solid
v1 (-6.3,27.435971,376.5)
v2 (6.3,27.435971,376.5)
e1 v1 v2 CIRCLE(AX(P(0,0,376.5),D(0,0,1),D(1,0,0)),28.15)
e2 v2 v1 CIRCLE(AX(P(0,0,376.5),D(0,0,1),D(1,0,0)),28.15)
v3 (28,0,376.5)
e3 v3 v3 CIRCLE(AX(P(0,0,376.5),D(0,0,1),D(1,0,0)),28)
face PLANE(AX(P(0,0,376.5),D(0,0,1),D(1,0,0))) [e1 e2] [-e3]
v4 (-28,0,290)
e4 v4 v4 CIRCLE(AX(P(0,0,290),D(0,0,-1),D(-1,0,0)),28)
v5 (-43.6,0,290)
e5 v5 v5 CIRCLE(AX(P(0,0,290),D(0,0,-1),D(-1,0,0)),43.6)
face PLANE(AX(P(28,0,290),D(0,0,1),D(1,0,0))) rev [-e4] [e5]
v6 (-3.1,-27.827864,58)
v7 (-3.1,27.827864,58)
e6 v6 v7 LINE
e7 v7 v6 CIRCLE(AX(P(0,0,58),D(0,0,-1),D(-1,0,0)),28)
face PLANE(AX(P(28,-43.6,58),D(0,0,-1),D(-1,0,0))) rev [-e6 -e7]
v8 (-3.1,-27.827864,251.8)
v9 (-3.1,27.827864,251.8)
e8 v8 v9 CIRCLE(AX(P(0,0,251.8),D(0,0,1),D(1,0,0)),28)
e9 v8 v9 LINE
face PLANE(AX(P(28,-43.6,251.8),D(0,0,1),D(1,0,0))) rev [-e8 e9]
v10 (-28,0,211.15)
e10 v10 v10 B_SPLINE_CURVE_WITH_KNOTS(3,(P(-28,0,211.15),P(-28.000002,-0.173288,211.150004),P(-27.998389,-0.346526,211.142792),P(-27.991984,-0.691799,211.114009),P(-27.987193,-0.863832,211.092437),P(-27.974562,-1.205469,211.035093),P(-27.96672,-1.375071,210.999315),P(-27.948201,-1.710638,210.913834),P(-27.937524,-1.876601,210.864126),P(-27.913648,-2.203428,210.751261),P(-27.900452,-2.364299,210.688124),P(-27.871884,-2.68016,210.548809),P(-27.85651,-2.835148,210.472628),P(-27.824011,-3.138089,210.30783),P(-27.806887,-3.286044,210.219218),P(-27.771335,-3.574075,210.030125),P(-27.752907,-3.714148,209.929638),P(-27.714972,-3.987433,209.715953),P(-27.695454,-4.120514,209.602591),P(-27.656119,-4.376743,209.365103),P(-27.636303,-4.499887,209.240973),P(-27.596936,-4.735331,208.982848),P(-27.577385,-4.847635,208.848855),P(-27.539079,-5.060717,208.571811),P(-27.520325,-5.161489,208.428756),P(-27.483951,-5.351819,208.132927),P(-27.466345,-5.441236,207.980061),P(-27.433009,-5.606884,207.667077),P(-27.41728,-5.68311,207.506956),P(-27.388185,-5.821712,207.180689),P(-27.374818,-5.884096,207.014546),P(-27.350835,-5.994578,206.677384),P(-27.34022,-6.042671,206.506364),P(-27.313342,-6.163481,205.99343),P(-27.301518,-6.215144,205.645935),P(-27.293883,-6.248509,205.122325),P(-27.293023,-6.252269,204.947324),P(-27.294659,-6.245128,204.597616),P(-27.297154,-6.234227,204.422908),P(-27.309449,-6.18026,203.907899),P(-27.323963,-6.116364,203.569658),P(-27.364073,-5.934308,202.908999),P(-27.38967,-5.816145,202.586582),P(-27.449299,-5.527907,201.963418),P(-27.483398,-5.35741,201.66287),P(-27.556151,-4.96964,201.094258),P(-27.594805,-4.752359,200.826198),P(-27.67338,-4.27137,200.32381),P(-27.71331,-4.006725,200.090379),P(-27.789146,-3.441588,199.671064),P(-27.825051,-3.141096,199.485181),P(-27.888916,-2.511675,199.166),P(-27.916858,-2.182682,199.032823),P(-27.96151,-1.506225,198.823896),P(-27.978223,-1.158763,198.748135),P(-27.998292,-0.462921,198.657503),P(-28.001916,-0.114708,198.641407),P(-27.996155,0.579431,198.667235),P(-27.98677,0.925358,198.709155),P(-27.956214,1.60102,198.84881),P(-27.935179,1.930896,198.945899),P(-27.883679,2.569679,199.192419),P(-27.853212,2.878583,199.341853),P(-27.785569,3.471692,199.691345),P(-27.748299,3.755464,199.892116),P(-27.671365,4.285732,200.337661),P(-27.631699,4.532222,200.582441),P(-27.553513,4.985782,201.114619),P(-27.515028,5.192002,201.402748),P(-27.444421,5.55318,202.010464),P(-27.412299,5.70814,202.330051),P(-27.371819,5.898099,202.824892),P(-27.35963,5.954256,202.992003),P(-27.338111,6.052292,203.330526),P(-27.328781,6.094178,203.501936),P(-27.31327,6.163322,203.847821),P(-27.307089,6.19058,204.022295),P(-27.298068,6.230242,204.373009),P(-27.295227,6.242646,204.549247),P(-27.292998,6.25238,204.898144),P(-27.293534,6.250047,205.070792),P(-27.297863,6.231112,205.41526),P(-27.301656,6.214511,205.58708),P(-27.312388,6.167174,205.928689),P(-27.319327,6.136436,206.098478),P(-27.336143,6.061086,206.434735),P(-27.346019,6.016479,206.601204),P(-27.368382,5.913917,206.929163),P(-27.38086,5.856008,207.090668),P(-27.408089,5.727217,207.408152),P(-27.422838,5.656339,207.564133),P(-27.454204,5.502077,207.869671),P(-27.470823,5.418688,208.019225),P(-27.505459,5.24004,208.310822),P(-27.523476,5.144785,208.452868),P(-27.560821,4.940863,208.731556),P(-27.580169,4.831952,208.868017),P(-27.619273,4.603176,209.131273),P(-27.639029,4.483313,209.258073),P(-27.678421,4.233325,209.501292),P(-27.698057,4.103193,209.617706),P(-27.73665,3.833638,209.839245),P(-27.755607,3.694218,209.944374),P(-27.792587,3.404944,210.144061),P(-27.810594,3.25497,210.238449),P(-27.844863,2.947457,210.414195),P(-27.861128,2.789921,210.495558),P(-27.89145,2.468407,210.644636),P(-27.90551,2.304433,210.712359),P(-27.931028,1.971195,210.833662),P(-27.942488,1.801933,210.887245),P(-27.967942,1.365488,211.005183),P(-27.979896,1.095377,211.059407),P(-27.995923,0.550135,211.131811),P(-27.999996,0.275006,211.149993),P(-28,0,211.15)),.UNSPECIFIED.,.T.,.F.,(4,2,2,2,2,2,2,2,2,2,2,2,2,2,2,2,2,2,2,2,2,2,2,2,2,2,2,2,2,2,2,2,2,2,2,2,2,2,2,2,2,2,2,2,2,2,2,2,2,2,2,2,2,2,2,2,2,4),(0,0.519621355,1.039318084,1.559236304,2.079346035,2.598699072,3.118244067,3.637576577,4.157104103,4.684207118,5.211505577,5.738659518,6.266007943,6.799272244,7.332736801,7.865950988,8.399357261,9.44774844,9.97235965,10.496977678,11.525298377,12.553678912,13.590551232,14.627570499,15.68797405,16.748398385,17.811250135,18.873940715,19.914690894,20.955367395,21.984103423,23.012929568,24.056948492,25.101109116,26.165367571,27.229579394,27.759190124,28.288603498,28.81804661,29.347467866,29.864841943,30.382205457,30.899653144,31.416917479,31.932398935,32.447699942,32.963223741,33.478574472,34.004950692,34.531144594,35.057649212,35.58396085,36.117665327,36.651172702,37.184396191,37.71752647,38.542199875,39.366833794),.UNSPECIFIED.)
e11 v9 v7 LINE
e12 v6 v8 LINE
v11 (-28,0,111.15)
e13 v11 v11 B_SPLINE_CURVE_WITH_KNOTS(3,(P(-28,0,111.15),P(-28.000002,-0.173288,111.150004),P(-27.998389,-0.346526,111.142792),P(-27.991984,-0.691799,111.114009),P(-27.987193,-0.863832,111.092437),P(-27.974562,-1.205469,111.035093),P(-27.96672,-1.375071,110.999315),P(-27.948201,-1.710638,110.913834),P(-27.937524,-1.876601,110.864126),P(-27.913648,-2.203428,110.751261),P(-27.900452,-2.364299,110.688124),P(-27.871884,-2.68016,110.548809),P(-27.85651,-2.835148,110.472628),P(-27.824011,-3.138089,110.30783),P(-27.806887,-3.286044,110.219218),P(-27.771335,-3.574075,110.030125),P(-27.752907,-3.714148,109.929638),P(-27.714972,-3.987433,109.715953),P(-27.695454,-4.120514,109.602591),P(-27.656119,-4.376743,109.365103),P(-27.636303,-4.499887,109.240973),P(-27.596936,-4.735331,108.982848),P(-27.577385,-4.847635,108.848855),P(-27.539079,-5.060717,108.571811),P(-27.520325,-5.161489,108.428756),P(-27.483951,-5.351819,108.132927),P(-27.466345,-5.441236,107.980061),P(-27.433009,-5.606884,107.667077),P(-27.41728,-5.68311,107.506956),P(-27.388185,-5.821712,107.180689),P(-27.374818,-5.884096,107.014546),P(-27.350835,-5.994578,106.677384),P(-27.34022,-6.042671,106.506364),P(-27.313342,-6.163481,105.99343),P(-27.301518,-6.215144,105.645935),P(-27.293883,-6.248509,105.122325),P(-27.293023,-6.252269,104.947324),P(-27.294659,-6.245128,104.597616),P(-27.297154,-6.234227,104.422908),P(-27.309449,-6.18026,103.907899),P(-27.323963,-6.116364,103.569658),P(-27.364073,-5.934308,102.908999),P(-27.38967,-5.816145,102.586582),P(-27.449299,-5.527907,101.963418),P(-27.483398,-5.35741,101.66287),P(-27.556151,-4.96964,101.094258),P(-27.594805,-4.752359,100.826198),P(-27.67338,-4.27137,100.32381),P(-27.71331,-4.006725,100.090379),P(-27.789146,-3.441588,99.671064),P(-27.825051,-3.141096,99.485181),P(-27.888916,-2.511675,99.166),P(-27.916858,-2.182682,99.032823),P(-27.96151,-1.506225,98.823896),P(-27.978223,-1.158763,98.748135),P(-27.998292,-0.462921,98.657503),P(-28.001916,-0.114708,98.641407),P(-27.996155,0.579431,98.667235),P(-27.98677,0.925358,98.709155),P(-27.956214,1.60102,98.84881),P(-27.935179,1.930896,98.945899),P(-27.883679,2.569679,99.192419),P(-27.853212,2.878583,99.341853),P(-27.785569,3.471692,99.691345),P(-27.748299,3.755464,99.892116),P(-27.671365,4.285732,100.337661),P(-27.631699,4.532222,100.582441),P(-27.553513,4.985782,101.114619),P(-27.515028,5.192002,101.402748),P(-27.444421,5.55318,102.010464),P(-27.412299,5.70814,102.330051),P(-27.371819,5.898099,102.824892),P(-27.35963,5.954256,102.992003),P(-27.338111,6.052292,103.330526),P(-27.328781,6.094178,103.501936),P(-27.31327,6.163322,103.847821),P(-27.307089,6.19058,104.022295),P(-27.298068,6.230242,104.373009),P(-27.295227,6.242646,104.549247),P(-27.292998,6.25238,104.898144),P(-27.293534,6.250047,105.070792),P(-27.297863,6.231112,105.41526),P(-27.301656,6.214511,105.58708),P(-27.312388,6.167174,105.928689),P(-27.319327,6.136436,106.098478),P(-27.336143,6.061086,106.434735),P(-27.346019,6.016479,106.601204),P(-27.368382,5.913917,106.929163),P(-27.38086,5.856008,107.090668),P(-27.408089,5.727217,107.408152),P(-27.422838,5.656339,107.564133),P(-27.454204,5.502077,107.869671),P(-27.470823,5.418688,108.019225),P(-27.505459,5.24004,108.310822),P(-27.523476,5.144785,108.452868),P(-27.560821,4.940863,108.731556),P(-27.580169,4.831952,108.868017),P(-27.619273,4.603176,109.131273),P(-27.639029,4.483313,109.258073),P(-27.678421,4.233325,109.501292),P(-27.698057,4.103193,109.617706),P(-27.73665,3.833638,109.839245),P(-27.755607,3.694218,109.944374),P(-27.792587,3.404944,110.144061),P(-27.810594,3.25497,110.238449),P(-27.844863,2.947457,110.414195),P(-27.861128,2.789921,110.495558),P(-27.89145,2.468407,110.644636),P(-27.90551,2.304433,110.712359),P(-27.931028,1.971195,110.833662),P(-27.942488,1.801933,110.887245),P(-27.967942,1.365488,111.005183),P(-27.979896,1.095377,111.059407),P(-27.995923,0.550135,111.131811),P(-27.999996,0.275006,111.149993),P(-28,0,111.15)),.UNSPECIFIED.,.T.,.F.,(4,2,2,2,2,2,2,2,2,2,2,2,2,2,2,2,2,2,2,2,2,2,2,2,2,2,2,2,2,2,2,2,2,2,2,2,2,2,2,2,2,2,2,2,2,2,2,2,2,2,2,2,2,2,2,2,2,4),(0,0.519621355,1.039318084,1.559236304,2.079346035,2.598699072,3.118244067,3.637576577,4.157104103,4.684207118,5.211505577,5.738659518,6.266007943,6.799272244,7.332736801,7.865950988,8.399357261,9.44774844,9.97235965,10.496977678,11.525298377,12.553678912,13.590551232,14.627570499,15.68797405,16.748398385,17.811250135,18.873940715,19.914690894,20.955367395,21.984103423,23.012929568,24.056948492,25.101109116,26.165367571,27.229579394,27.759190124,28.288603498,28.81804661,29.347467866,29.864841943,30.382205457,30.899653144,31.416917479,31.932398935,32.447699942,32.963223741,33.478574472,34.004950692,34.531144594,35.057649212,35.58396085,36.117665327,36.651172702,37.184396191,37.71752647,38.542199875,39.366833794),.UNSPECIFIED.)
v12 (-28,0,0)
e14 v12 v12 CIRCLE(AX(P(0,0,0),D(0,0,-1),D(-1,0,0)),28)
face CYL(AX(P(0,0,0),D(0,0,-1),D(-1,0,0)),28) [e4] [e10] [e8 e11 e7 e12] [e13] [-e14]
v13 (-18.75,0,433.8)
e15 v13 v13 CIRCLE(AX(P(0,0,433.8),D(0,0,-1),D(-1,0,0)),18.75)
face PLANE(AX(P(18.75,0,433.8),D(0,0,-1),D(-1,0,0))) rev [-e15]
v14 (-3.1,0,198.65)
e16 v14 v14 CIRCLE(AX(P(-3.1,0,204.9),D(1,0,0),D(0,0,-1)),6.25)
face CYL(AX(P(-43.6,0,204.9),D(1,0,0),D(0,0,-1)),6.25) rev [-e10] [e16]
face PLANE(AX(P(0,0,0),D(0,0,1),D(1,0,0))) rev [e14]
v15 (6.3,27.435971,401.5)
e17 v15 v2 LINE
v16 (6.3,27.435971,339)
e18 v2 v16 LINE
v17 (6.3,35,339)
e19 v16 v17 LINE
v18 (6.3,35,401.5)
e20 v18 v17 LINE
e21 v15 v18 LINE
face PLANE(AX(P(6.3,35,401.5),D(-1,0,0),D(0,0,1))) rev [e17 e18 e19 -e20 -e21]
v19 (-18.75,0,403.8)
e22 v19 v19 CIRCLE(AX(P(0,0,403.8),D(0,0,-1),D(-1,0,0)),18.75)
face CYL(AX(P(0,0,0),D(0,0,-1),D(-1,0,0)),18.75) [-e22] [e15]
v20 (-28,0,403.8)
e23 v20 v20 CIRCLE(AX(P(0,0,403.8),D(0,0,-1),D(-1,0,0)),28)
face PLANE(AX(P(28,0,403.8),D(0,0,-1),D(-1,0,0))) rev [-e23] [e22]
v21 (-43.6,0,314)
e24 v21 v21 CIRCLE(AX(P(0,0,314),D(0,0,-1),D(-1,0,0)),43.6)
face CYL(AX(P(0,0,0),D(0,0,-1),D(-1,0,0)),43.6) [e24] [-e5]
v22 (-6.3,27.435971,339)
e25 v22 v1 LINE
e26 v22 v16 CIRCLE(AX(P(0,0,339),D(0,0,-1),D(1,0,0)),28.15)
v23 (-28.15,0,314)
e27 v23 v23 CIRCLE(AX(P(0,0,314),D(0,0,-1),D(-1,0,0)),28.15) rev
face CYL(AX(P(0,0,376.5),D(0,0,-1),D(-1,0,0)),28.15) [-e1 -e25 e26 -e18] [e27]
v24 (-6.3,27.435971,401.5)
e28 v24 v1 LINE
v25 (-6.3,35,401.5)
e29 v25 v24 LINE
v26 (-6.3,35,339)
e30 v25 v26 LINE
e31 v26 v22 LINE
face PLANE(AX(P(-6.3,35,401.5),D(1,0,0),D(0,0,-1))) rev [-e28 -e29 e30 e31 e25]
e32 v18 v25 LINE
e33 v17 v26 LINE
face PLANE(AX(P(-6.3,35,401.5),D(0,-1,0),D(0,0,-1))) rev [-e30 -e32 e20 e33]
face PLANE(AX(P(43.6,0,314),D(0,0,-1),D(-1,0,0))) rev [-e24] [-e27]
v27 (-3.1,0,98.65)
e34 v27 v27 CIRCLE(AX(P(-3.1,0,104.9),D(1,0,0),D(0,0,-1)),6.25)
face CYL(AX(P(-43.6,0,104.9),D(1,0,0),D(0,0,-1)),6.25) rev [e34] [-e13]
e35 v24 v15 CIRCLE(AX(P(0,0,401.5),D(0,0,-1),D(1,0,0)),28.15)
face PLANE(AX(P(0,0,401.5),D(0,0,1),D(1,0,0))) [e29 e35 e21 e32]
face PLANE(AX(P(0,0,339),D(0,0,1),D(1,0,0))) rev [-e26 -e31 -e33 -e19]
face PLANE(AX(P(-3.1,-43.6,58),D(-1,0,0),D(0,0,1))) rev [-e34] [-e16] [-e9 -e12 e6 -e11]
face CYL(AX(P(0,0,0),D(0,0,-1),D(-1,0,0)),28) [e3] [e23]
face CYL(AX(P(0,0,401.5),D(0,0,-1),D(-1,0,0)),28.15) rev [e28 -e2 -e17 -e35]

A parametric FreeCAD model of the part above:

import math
import FreeCAD as App
import Part
import Sketcher
from FreeCAD import Vector

doc = App.newDocument("Part")
body = doc.addObject("PartDesign::Body", "Body")

sketch1 = body.newObject("Sketcher::SketchObject", "Sketch")
sketch1.AttachmentSupport = (doc.getObject("XZ_Plane"), [""])
sketch1.MapMode = "FlatFace"
sketch1.addGeometry(Part.LineSegment(Vector(28, 0, 0), Vector(0, 0, 0)), False)
sketch1.addGeometry(Part.LineSegment(Vector(0, 0, 0), Vector(0, 434, 0)), False)
sketch1.addGeometry(Part.LineSegment(Vector(0, 434, 0), Vector(19, 434, 0)), False)
sketch1.addGeometry(Part.LineSegment(Vector(19, 434, 0), Vector(19, 404, 0)), False)
sketch1.addGeometry(Part.LineSegment(Vector(19, 404, 0), Vector(28, 404, 0)), False)
sketch1.addGeometry(Part.LineSegment(Vector(28, 404, 0), Vector(28, 314, 0)), False)
sketch1.addGeometry(Part.LineSegment(Vector(28, 314, 0), Vector(44, 314, 0)), False)
sketch1.addGeometry(Part.LineSegment(Vector(44, 314, 0), Vector(44, 290, 0)), False)
sketch1.addGeometry(Part.LineSegment(Vector(44, 290, 0), Vector(28, 290, 0)), False)
sketch1.addGeometry(Part.LineSegment(Vector(28, 290, 0), Vector(28, 0, 0)), False)
sketch1.addConstraint(Sketcher.Constraint("Coincident", 0, 2, 1, 1))
sketch1.addConstraint(Sketcher.Constraint("Coincident", 1, 2, 2, 1))
sketch1.addConstraint(Sketcher.Constraint("Coincident", 2, 2, 3, 1))
sketch1.addConstraint(Sketcher.Constraint("Coincident", 3, 2, 4, 1))
sketch1.addConstraint(Sketcher.Constraint("Coincident", 4, 2, 5, 1))
sketch1.addConstraint(Sketcher.Constraint("Coincident", 5, 2, 6, 1))
sketch1.addConstraint(Sketcher.Constraint("Coincident", 6, 2, 7, 1))
sketch1.addConstraint(Sketcher.Constraint("Coincident", 7, 2, 8, 1))
sketch1.addConstraint(Sketcher.Constraint("Coincident", 8, 2, 9, 1))
sketch1.addConstraint(Sketcher.Constraint("Coincident", 9, 2, 0, 1))
sketch1.addConstraint(Sketcher.Constraint("Horizontal", 0))
sketch1.addConstraint(Sketcher.Constraint("Vertical", 1))
sketch1.addConstraint(Sketcher.Constraint("Horizontal", 2))
sketch1.addConstraint(Sketcher.Constraint("Vertical", 3))
sketch1.addConstraint(Sketcher.Constraint("Horizontal", 4))
sketch1.addConstraint(Sketcher.Constraint("Vertical", 5))
sketch1.addConstraint(Sketcher.Constraint("Horizontal", 6))
sketch1.addConstraint(Sketcher.Constraint("Vertical", 7))
sketch1.addConstraint(Sketcher.Constraint("Horizontal", 8))
sketch1.addConstraint(Sketcher.Constraint("Vertical", 9))
sketch1.addConstraint(Sketcher.Constraint("Coincident", 0, 2, -1, 1))
sketch1.addConstraint(Sketcher.Constraint("Vertical", 5, 2, 8, 2))
sketch1.addConstraint(Sketcher.Constraint("DistanceX", 0, 2, 0, 1, 28.0))
sketch1.addConstraint(Sketcher.Constraint("DistanceY", 3, 2, 3, 1, 30.0))
sketch1.addConstraint(Sketcher.Constraint("DistanceY", 7, 2, 7, 1, 24.0))
sketch1.addConstraint(Sketcher.Constraint("DistanceY", 9, 2, 9, 1, 290.0))
sketch1.addConstraint(Sketcher.Constraint("DistanceX", 6, 1, 6, 2, 15.6))
sketch1.addConstraint(Sketcher.Constraint("DistanceY", 1, 1, 1, 2, 433.8))
sketch1.addConstraint(Sketcher.Constraint("DistanceX", 2, 1, 2, 2, 18.75))
revolution = body.newObject("PartDesign::Revolution", "Revolution")
revolution.Profile = sketch1
revolution.ReferenceAxis = (sketch1, ["V_Axis"])
revolution.Angle = 360

sketch2 = body.newObject("Sketcher::SketchObject", "Sketch001")
sketch2.AttachmentSupport = (doc.getObject("XY_Plane"), [""])
sketch2.MapMode = "FlatFace"
sketch2.AttachmentOffset = App.Placement(Vector(0, 0, 314), App.Rotation())
sketch2.addGeometry(Part.Circle(Vector(0, 0, 0), Vector(0, 0, 1), 28), False)
sketch2.addConstraint(Sketcher.Constraint("Coincident", 0, 3, -1, 1))
sketch2.addConstraint(Sketcher.Constraint("Diameter", 0, 56.3))
pad1 = body.newObject("PartDesign::Pad", "Pad")
pad1.Profile = sketch2
pad1.Length = 62.5

sketch3 = body.newObject("Sketcher::SketchObject", "Sketch002")
sketch3.AttachmentSupport = (doc.getObject("XY_Plane"), [""])
sketch3.MapMode = "FlatFace"
sketch3.AttachmentOffset = App.Placement(Vector(0, 0, 339), App.Rotation())
sketch3.addGeometry(Part.LineSegment(Vector(6, 35, 0), Vector(-6, 35, 0)), False)
sketch3.addGeometry(Part.LineSegment(Vector(-6, 35, 0), Vector(-6, 27, 0)), False)
sketch3.addGeometry(Part.ArcOfCircle(Part.Circle(Vector(0, 0, 0), Vector(0, 0, 1), 28), math.radians(77), math.radians(103)), False)
sketch3.addGeometry(Part.LineSegment(Vector(6, 27, 0), Vector(6, 35, 0)), False)
sketch3.addConstraint(Sketcher.Constraint("Coincident", 0, 2, 1, 1))
sketch3.addConstraint(Sketcher.Constraint("Coincident", 1, 2, 2, 2))
sketch3.addConstraint(Sketcher.Constraint("Coincident", 2, 1, 3, 1))
sketch3.addConstraint(Sketcher.Constraint("Coincident", 3, 2, 0, 1))
sketch3.addConstraint(Sketcher.Constraint("Horizontal", 0))
sketch3.addConstraint(Sketcher.Constraint("Vertical", 1))
sketch3.addConstraint(Sketcher.Constraint("Vertical", 3))
sketch3.addConstraint(Sketcher.Constraint("Coincident", 2, 3, -1, 1))
sketch3.addConstraint(Sketcher.Constraint("Horizontal", 1, 2, 2, 1))
sketch3.addConstraint(Sketcher.Constraint("Radius", 2, 28.15))
sketch3.addConstraint(Sketcher.Constraint("DistanceX", 0, 2, 0, 1, 12.6))
sketch3.addConstraint(Sketcher.Constraint("DistanceY", -1, 1, 0, 2, 35.0))
pad2 = body.newObject("PartDesign::Pad", "Pad001")
pad2.Profile = sketch3
pad2.Length = 62.5

sketch4 = body.newObject("Sketcher::SketchObject", "Sketch003")
sketch4.AttachmentSupport = (doc.getObject("XZ_Plane"), [""])
sketch4.MapMode = "FlatFace"
sketch4.addGeometry(Part.LineSegment(Vector(-3, 58, 0), Vector(-3, 252, 0)), False)
sketch4.addGeometry(Part.LineSegment(Vector(-3, 252, 0), Vector(28, 252, 0)), False)
sketch4.addGeometry(Part.LineSegment(Vector(28, 252, 0), Vector(28, 58, 0)), False)
sketch4.addGeometry(Part.LineSegment(Vector(28, 58, 0), Vector(-3, 58, 0)), False)
sketch4.addConstraint(Sketcher.Constraint("Coincident", 0, 2, 1, 1))
sketch4.addConstraint(Sketcher.Constraint("Coincident", 1, 2, 2, 1))
sketch4.addConstraint(Sketcher.Constraint("Coincident", 2, 2, 3, 1))
sketch4.addConstraint(Sketcher.Constraint("Coincident", 3, 2, 0, 1))
sketch4.addConstraint(Sketcher.Constraint("Vertical", 0))
sketch4.addConstraint(Sketcher.Constraint("Horizontal", 1))
sketch4.addConstraint(Sketcher.Constraint("Vertical", 2))
sketch4.addConstraint(Sketcher.Constraint("Horizontal", 3))
sketch4.addConstraint(Sketcher.Constraint("DistanceX", 1, 1, 1, 2, 31.1))
sketch4.addConstraint(Sketcher.Constraint("DistanceY", 0, 1, 0, 2, 193.8))
sketch4.addConstraint(Sketcher.Constraint("DistanceX", -1, 1, 1, 2, 28.0))
sketch4.addConstraint(Sketcher.Constraint("DistanceY", -1, 1, 2, 2, 58.0))
pocket1 = body.newObject("PartDesign::Pocket", "Pocket")
pocket1.Profile = sketch4
pocket1.Type = "ThroughAll"
pocket1.Midplane = True

sketch5 = body.newObject("Sketcher::SketchObject", "Sketch004")
sketch5.AttachmentSupport = (doc.getObject("YZ_Plane"), [""])
sketch5.MapMode = "FlatFace"
sketch5.AttachmentOffset = App.Placement(Vector(0, 0, -3.1), App.Rotation())
sketch5.addGeometry(Part.Circle(Vector(0, 205, 0), Vector(0, 0, 1), 6), False)
sketch5.addGeometry(Part.Circle(Vector(0, 105, 0), Vector(0, 0, 1), 6), False)
sketch5.addConstraint(Sketcher.Constraint("Equal", 0, 1))
sketch5.addConstraint(Sketcher.Constraint("PointOnObject", 0, 3, -2))
sketch5.addConstraint(Sketcher.Constraint("PointOnObject", 1, 3, -2))
sketch5.addConstraint(Sketcher.Constraint("Diameter", 0, 12.5))
sketch5.addConstraint(Sketcher.Constraint("DistanceY", 1, 3, 0, 3, 100.0))
sketch5.addConstraint(Sketcher.Constraint("DistanceY", -1, 1, 0, 3, 204.9))
pocket2 = body.newObject("PartDesign::Pocket", "Pocket001")
pocket2.Profile = sketch5
pocket2.Type = "ThroughAll"

doc.recompute()
